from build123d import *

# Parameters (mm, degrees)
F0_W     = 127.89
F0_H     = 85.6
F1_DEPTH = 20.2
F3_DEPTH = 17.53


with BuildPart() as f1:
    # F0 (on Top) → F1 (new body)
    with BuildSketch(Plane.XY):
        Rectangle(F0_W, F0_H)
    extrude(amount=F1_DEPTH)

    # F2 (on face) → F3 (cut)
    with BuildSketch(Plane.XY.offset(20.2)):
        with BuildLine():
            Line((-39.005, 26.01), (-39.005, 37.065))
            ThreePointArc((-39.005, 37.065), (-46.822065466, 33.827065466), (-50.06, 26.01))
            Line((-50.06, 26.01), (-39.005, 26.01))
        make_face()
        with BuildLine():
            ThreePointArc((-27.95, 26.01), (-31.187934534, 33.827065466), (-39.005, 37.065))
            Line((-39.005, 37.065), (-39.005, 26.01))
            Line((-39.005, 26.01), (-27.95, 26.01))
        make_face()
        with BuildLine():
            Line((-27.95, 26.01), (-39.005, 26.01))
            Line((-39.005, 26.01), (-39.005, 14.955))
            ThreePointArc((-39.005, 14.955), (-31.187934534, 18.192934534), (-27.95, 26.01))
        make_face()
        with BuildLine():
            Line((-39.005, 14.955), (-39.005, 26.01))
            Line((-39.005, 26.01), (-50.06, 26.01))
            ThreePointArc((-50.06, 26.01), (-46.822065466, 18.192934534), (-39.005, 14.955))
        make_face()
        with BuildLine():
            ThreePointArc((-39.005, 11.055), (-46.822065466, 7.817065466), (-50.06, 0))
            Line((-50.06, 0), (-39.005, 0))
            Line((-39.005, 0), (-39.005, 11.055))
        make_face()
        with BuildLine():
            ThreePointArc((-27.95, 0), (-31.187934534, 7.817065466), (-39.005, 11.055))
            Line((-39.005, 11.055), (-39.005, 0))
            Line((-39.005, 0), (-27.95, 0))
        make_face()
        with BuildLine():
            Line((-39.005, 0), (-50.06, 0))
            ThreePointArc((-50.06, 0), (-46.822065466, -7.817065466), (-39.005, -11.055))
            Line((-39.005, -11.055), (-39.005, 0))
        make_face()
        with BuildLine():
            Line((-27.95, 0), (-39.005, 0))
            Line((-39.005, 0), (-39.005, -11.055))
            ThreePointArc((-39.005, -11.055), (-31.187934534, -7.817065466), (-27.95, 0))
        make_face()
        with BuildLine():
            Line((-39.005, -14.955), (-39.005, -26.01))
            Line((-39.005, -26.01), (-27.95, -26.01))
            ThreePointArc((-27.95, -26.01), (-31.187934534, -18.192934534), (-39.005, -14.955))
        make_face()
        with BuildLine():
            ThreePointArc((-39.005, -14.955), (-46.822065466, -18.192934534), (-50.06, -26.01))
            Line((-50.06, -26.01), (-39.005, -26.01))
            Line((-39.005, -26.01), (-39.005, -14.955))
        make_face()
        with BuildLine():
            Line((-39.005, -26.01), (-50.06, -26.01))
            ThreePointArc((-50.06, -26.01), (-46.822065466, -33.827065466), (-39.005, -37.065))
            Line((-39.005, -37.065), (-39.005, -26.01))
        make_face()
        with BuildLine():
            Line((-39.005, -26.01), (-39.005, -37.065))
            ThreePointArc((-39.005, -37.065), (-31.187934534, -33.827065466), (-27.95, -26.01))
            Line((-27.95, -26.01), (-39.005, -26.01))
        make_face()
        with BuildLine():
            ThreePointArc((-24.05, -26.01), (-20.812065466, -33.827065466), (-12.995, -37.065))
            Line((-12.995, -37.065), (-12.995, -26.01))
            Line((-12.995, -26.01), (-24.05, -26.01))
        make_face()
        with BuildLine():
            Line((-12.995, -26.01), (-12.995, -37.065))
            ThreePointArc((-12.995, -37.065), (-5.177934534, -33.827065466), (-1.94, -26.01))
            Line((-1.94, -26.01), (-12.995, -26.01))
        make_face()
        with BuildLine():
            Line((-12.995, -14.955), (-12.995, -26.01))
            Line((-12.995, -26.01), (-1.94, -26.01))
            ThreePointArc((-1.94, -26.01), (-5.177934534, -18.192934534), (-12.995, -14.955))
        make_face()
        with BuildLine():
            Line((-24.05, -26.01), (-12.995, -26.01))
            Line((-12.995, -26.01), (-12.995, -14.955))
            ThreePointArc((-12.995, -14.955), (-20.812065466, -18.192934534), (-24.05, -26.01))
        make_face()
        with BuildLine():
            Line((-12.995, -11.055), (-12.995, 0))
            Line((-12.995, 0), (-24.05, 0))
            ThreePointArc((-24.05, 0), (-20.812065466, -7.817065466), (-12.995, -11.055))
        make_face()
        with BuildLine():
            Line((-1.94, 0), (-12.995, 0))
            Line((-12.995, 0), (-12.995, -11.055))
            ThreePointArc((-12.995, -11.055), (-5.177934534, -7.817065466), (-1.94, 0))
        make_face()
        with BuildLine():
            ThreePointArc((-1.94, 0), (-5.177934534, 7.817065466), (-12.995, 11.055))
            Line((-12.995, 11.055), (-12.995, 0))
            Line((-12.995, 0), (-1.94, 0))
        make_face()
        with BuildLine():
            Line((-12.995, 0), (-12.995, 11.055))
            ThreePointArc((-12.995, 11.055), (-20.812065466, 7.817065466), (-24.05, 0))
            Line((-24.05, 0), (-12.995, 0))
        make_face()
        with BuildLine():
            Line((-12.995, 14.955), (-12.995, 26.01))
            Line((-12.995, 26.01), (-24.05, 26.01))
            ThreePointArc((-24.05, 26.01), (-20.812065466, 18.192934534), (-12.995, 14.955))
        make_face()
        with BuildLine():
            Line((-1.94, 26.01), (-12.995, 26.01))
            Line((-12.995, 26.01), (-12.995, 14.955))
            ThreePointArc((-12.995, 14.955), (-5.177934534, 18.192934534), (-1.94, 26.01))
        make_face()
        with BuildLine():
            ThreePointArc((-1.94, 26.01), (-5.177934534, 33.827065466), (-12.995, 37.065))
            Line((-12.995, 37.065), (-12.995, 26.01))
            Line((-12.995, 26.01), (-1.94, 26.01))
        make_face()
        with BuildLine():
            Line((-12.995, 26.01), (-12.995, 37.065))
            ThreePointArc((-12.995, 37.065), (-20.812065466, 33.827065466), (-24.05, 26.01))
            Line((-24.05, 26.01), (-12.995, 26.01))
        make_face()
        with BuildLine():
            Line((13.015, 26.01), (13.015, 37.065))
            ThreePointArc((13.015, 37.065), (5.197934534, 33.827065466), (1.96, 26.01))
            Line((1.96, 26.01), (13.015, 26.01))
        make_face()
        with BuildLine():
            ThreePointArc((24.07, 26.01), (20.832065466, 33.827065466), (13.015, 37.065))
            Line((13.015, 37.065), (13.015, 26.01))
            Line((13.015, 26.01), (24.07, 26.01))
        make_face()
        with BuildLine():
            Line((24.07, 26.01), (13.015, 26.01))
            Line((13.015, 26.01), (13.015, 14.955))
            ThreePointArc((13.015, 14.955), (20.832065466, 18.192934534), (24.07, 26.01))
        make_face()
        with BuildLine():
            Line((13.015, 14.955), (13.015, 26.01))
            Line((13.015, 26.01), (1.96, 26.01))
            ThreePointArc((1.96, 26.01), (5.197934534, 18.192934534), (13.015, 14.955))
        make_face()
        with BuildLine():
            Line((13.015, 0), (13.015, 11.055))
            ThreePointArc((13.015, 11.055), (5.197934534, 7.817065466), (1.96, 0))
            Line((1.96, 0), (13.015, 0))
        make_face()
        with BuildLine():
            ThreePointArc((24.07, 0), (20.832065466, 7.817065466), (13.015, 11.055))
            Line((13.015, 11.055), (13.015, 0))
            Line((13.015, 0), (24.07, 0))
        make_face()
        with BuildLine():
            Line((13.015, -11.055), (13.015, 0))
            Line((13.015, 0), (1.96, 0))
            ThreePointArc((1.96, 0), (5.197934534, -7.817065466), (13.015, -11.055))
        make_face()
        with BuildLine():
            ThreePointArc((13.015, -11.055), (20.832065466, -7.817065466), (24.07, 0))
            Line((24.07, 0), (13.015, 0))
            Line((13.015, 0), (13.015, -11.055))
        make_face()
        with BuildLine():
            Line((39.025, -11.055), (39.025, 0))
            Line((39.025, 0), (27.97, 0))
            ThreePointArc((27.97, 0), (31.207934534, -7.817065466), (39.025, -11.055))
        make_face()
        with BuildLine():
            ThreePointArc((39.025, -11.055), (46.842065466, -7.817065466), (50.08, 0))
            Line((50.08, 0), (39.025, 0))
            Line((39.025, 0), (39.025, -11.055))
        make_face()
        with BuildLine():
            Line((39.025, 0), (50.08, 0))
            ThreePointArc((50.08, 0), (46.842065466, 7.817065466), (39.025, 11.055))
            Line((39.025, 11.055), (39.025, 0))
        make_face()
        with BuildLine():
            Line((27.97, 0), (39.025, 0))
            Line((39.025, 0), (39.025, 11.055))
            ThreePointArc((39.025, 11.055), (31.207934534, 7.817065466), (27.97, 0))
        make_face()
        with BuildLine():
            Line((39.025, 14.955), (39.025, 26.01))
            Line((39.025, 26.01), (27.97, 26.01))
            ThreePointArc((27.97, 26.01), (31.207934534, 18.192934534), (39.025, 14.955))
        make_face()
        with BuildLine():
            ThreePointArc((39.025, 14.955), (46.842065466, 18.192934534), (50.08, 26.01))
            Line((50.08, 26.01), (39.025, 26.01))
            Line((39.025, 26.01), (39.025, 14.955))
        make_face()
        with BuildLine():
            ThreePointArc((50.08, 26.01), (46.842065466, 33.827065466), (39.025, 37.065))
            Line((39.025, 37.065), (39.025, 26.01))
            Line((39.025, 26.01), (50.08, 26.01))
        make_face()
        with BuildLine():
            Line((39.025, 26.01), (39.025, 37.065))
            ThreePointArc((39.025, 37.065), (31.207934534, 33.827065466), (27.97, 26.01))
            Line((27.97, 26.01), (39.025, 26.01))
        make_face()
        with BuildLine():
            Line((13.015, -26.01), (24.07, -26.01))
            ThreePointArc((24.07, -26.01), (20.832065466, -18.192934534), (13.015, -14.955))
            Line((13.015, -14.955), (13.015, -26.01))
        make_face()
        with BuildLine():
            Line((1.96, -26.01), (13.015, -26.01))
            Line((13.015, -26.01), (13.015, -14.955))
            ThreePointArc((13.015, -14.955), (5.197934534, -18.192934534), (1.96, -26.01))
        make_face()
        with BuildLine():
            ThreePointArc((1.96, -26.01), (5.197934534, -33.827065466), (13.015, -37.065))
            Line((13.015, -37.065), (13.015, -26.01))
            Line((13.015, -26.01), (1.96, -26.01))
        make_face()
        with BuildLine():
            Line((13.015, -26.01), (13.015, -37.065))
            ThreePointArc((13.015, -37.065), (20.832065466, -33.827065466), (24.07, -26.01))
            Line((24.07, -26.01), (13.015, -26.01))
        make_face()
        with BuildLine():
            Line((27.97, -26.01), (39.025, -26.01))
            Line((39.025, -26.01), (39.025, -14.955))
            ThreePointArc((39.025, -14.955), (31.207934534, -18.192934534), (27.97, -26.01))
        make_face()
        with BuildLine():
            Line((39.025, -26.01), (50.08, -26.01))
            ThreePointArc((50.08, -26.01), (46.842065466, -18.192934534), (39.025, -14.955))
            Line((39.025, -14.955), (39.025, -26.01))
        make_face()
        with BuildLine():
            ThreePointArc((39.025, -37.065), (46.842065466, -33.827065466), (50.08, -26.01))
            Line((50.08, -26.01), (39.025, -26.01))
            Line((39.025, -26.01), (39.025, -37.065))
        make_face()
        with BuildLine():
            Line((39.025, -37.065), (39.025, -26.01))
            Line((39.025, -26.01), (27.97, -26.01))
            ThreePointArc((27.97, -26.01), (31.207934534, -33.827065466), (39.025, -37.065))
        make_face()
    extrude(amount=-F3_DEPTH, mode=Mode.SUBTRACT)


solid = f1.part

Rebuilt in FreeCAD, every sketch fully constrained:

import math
import FreeCAD as App
import Part
import Sketcher
Q = App.Units.Quantity


def add_polygon(sketch, points):
    """Adds a closed chain of lines whose ends are joined by coincident constraints."""
    first, n = sketch.GeometryCount, len(points)
    for a, b in zip(points, points[1:] + points[:1]):
        sketch.addGeometry(Part.LineSegment(App.Vector(*a, 0), App.Vector(*b, 0)), False)
    for i in range(n):
        sketch.addConstraint(Sketcher.Constraint("Coincident", first + i, 2, first + (i + 1) % n, 1))

doc = App.newDocument("Part")
body = doc.addObject("PartDesign::Body", "Body")

sketch1 = body.newObject("Sketcher::SketchObject", "Sketch")
sketch1.AttachmentSupport = (doc.getObject("XY_Plane"), [""])
sketch1.MapMode = "FlatFace"
add_polygon(sketch1, [(-64, 43), (-64, -43), (64, -43), (64, 43)])
sketch1.addConstraint([
    Sketcher.Constraint("Vertical", 0),
    Sketcher.Constraint("Horizontal", 1),
    Sketcher.Constraint("Vertical", 2),
    Sketcher.Constraint("Horizontal", 3),
    Sketcher.Constraint("Symmetric", 0, 2, 2, 2, -1, 1),
    Sketcher.Constraint("DistanceY", 0, 2, 0, 1, Q("85.6 mm")),
    Sketcher.Constraint("DistanceX", 1, 1, 1, 2, Q("127.89 mm")),
])
pad1 = body.newObject("PartDesign::Pad", "Pad")
pad1.Profile = sketch1
pad1.Length = 20.2

sketch2 = body.newObject("Sketcher::SketchObject", "Sketch001")
sketch2.AttachmentSupport = (doc.getObject("XY_Plane"), [""])
sketch2.MapMode = "FlatFace"
sketch2.AttachmentOffset = App.Placement(App.Vector(0, 0, 20.2), App.Rotation())
sketch2.addGeometry([
    Part.ArcOfCircle(Part.Circle(App.Vector(-39, 26, 0), App.Vector(0, 0, 1), 11), math.radians(90), math.radians(180)),
    Part.ArcOfCircle(Part.Circle(App.Vector(-39, 26, 0), App.Vector(0, 0, 1), 11), math.radians(180), math.radians(270)),
    Part.ArcOfCircle(Part.Circle(App.Vector(-39, 26, 0), App.Vector(0, 0, 1), 11), math.radians(-90), math.radians(0)),
    Part.ArcOfCircle(Part.Circle(App.Vector(-39, 26, 0), App.Vector(0, 0, 1), 11), math.radians(0), math.radians(90)),
    Part.ArcOfCircle(Part.Circle(App.Vector(-39, 0, 0), App.Vector(0, 0, 1), 11), math.radians(90), math.radians(180)),
    Part.ArcOfCircle(Part.Circle(App.Vector(-39, 0, 0), App.Vector(0, 0, 1), 11), math.radians(180), math.radians(270)),
    Part.ArcOfCircle(Part.Circle(App.Vector(-39, 0, 0), App.Vector(0, 0, 1), 11), math.radians(-90), math.radians(0)),
    Part.ArcOfCircle(Part.Circle(App.Vector(-39, 0, 0), App.Vector(0, 0, 1), 11), math.radians(0), math.radians(90)),
    Part.ArcOfCircle(Part.Circle(App.Vector(-39, -26, 0), App.Vector(0, 0, 1), 11), math.radians(0), math.radians(90)),
    Part.ArcOfCircle(Part.Circle(App.Vector(-39, -26, 0), App.Vector(0, 0, 1), 11), math.radians(90), math.radians(180)),
    Part.ArcOfCircle(Part.Circle(App.Vector(-39, -26, 0), App.Vector(0, 0, 1), 11), math.radians(180), math.radians(270)),
    Part.ArcOfCircle(Part.Circle(App.Vector(-39, -26, 0), App.Vector(0, 0, 1), 11), math.radians(-90), math.radians(0)),
    Part.ArcOfCircle(Part.Circle(App.Vector(-13, -26, 0), App.Vector(0, 0, 1), 11), math.radians(180), math.radians(270)),
    Part.ArcOfCircle(Part.Circle(App.Vector(-13, -26, 0), App.Vector(0, 0, 1), 11), math.radians(-90), math.radians(0)),
    Part.ArcOfCircle(Part.Circle(App.Vector(-13, -26, 0), App.Vector(0, 0, 1), 11), math.radians(0), math.radians(90)),
    Part.ArcOfCircle(Part.Circle(App.Vector(-13, -26, 0), App.Vector(0, 0, 1), 11), math.radians(90), math.radians(180)),
    Part.ArcOfCircle(Part.Circle(App.Vector(-13, 0, 0), App.Vector(0, 0, 1), 11), math.radians(180), math.radians(270)),
    Part.ArcOfCircle(Part.Circle(App.Vector(-13, 0, 0), App.Vector(0, 0, 1), 11), math.radians(-90), math.radians(0)),
    Part.ArcOfCircle(Part.Circle(App.Vector(-13, 0, 0), App.Vector(0, 0, 1), 11), math.radians(0), math.radians(90)),
    Part.ArcOfCircle(Part.Circle(App.Vector(-13, 0, 0), App.Vector(0, 0, 1), 11), math.radians(90), math.radians(180)),
    Part.ArcOfCircle(Part.Circle(App.Vector(-13, 26, 0), App.Vector(0, 0, 1), 11), math.radians(180), math.radians(270)),
    Part.ArcOfCircle(Part.Circle(App.Vector(-13, 26, 0), App.Vector(0, 0, 1), 11), math.radians(-90), math.radians(0)),
    Part.ArcOfCircle(Part.Circle(App.Vector(-13, 26, 0), App.Vector(0, 0, 1), 11), math.radians(0), math.radians(90)),
    Part.ArcOfCircle(Part.Circle(App.Vector(-13, 26, 0), App.Vector(0, 0, 1), 11), math.radians(90), math.radians(180)),
    Part.ArcOfCircle(Part.Circle(App.Vector(13, 26, 0), App.Vector(0, 0, 1), 11), math.radians(90), math.radians(180)),
    Part.ArcOfCircle(Part.Circle(App.Vector(13, 26, 0), App.Vector(0, 0, 1), 11), math.radians(180), math.radians(270)),
    Part.ArcOfCircle(Part.Circle(App.Vector(13, 26, 0), App.Vector(0, 0, 1), 11), math.radians(-90), math.radians(0)),
    Part.ArcOfCircle(Part.Circle(App.Vector(13, 26, 0), App.Vector(0, 0, 1), 11), math.radians(0), math.radians(90)),
    Part.ArcOfCircle(Part.Circle(App.Vector(13, 0, 0), App.Vector(0, 0, 1), 11), math.radians(90), math.radians(180)),
    Part.ArcOfCircle(Part.Circle(App.Vector(13, 0, 0), App.Vector(0, 0, 1), 11), math.radians(180), math.radians(270)),
    Part.ArcOfCircle(Part.Circle(App.Vector(13, 0, 0), App.Vector(0, 0, 1), 11), math.radians(-90), math.radians(0)),
    Part.ArcOfCircle(Part.Circle(App.Vector(13, 0, 0), App.Vector(0, 0, 1), 11), math.radians(0), math.radians(90)),
    Part.ArcOfCircle(Part.Circle(App.Vector(39, 0, 0), App.Vector(0, 0, 1), 11), math.radians(180), math.radians(270)),
    Part.ArcOfCircle(Part.Circle(App.Vector(39, 0, 0), App.Vector(0, 0, 1), 11), math.radians(-90), math.radians(0)),
    Part.ArcOfCircle(Part.Circle(App.Vector(39, 0, 0), App.Vector(0, 0, 1), 11), math.radians(0), math.radians(90)),
    Part.ArcOfCircle(Part.Circle(App.Vector(39, 0, 0), App.Vector(0, 0, 1), 11), math.radians(90), math.radians(180)),
    Part.ArcOfCircle(Part.Circle(App.Vector(39, 26, 0), App.Vector(0, 0, 1), 11), math.radians(180), math.radians(270)),
    Part.ArcOfCircle(Part.Circle(App.Vector(39, 26, 0), App.Vector(0, 0, 1), 11), math.radians(-90), math.radians(0)),
    Part.ArcOfCircle(Part.Circle(App.Vector(39, 26, 0), App.Vector(0, 0, 1), 11), math.radians(0), math.radians(90)),
    Part.ArcOfCircle(Part.Circle(App.Vector(39, 26, 0), App.Vector(0, 0, 1), 11), math.radians(90), math.radians(180)),
    Part.ArcOfCircle(Part.Circle(App.Vector(13, -26, 0), App.Vector(0, 0, 1), 11), math.radians(0), math.radians(90)),
    Part.ArcOfCircle(Part.Circle(App.Vector(13, -26, 0), App.Vector(0, 0, 1), 11), math.radians(90), math.radians(180)),
    Part.ArcOfCircle(Part.Circle(App.Vector(13, -26, 0), App.Vector(0, 0, 1), 11), math.radians(180), math.radians(270)),
    Part.ArcOfCircle(Part.Circle(App.Vector(13, -26, 0), App.Vector(0, 0, 1), 11), math.radians(-90), math.radians(0)),
    Part.ArcOfCircle(Part.Circle(App.Vector(39, -26, 0), App.Vector(0, 0, 1), 11), math.radians(-90), math.radians(0)),
    Part.ArcOfCircle(Part.Circle(App.Vector(39, -26, 0), App.Vector(0, 0, 1), 11), math.radians(0), math.radians(90)),
    Part.ArcOfCircle(Part.Circle(App.Vector(39, -26, 0), App.Vector(0, 0, 1), 11), math.radians(90), math.radians(180)),
    Part.ArcOfCircle(Part.Circle(App.Vector(39, -26, 0), App.Vector(0, 0, 1), 11), math.radians(180), math.radians(270)),
], False)
sketch2.addConstraint([
    Sketcher.Constraint("Tangent", 0, 2, 1, 1),
    Sketcher.Constraint("Tangent", 1, 2, 2, 1),
    Sketcher.Constraint("Tangent", 2, 2, 3, 1),
    Sketcher.Constraint("Tangent", 3, 2, 0, 1),
    Sketcher.Constraint("Tangent", 4, 2, 5, 1),
    Sketcher.Constraint("Tangent", 5, 2, 6, 1),
    Sketcher.Constraint("Tangent", 6, 2, 7, 1),
    Sketcher.Constraint("Tangent", 7, 2, 4, 1),
    Sketcher.Constraint("Tangent", 8, 2, 9, 1),
    Sketcher.Constraint("Tangent", 9, 2, 10, 1),
    Sketcher.Constraint("Tangent", 10, 2, 11, 1),
    Sketcher.Constraint("Tangent", 11, 2, 8, 1),
    Sketcher.Constraint("Tangent", 12, 2, 13, 1),
    Sketcher.Constraint("Tangent", 13, 2, 14, 1),
    Sketcher.Constraint("Tangent", 14, 2, 15, 1),
    Sketcher.Constraint("Tangent", 15, 2, 12, 1),
    Sketcher.Constraint("Tangent", 16, 2, 17, 1),
    Sketcher.Constraint("Tangent", 17, 2, 18, 1),
    Sketcher.Constraint("Tangent", 18, 2, 19, 1),
    Sketcher.Constraint("Tangent", 19, 2, 16, 1),
    Sketcher.Constraint("Tangent", 20, 2, 21, 1),
    Sketcher.Constraint("Tangent", 21, 2, 22, 1),
    Sketcher.Constraint("Tangent", 22, 2, 23, 1),
    Sketcher.Constraint("Tangent", 23, 2, 20, 1),
    Sketcher.Constraint("Tangent", 24, 2, 25, 1),
    Sketcher.Constraint("Tangent", 25, 2, 26, 1),
    Sketcher.Constraint("Tangent", 26, 2, 27, 1),
    Sketcher.Constraint("Tangent", 27, 2, 24, 1),
    Sketcher.Constraint("Tangent", 28, 2, 29, 1),
    Sketcher.Constraint("Tangent", 29, 2, 30, 1),
    Sketcher.Constraint("Tangent", 30, 2, 31, 1),
    Sketcher.Constraint("Tangent", 31, 2, 28, 1),
    Sketcher.Constraint("Tangent", 32, 2, 33, 1),
    Sketcher.Constraint("Tangent", 33, 2, 34, 1),
    Sketcher.Constraint("Tangent", 34, 2, 35, 1),
    Sketcher.Constraint("Tangent", 35, 2, 32, 1),
    Sketcher.Constraint("Tangent", 36, 2, 37, 1),
    Sketcher.Constraint("Tangent", 37, 2, 38, 1),
    Sketcher.Constraint("Tangent", 38, 2, 39, 1),
    Sketcher.Constraint("Tangent", 39, 2, 36, 1),
    Sketcher.Constraint("Tangent", 40, 2, 41, 1),
    Sketcher.Constraint("Tangent", 41, 2, 42, 1),
    Sketcher.Constraint("Tangent", 42, 2, 43, 1),
    Sketcher.Constraint("Tangent", 43, 2, 40, 1),
    Sketcher.Constraint("Tangent", 44, 2, 45, 1),
    Sketcher.Constraint("Tangent", 45, 2, 46, 1),
    Sketcher.Constraint("Tangent", 46, 2, 47, 1),
    Sketcher.Constraint("Tangent", 47, 2, 44, 1),
    Sketcher.Constraint("Equal", 0, 1),
    Sketcher.Constraint("Equal", 3, 4),
    Sketcher.Constraint("Equal", 4, 5),
    Sketcher.Constraint("Equal", 7, 8),
    Sketcher.Constraint("Equal", 8, 9),
    Sketcher.Constraint("Equal", 11, 12),
    Sketcher.Constraint("Equal", 12, 13),
    Sketcher.Constraint("Equal", 15, 16),
    Sketcher.Constraint("Equal", 16, 17),
    Sketcher.Constraint("Equal", 19, 20),
    Sketcher.Constraint("Equal", 20, 21),
    Sketcher.Constraint("Equal", 23, 24),
    Sketcher.Constraint("Equal", 24, 25),
    Sketcher.Constraint("Equal", 27, 28),
    Sketcher.Constraint("Equal", 28, 29),
    Sketcher.Constraint("Equal", 31, 32),
    Sketcher.Constraint("Equal", 32, 33),
    Sketcher.Constraint("Equal", 35, 36),
    Sketcher.Constraint("Equal", 36, 37),
    Sketcher.Constraint("Equal", 39, 40),
    Sketcher.Constraint("Equal", 40, 41),
    Sketcher.Constraint("Equal", 43, 44),
    Sketcher.Constraint("Equal", 44, 45),
    Sketcher.Constraint("Symmetric", 0, 3, 8, 3, -1),
    Sketcher.Constraint("Symmetric", 12, 3, 20, 3, -1),
    Sketcher.Constraint("Symmetric", 24, 3, 40, 3, -1),
    Sketcher.Constraint("Symmetric", 36, 3, 44, 3, -1),
    Sketcher.Constraint("Symmetric", 5, 2, 7, 2, -1),
    Sketcher.Constraint("Symmetric", 16, 2, 18, 2, -1),
    Sketcher.Constraint("Symmetric", 29, 2, 31, 2, -1),
    Sketcher.Constraint("Symmetric", 32, 2, 34, 2, -1),
    Sketcher.Constraint("PointOnObject", 4, 2, -1),
    Sketcher.Constraint("PointOnObject", 6, 2, -1),
    Sketcher.Constraint("PointOnObject", 17, 2, -1),
    Sketcher.Constraint("PointOnObject", 19, 2, -1),
    Sketcher.Constraint("PointOnObject", 28, 2, -1),
    Sketcher.Constraint("PointOnObject", 30, 2, -1),
    Sketcher.Constraint("PointOnObject", 33, 2, -1),
    Sketcher.Constraint("PointOnObject", 35, 2, -1),
    Sketcher.Constraint("Horizontal", 11, 3, 12, 3),
    Sketcher.Constraint("Horizontal", 23, 3, 24, 3),
    Sketcher.Constraint("Horizontal", 27, 3, 36, 3),
    Sketcher.Constraint("Horizontal", 39, 3, 0, 2),
    Sketcher.Constraint("Horizontal", 0, 2, 2, 2),
    Sketcher.Constraint("Horizontal", 47, 3, 9, 2),
    Sketcher.Constraint("Horizontal", 9, 2, 11, 2),
    Sketcher.Constraint("Horizontal", 11, 2, 13, 2),
    Sketcher.Constraint("Horizontal", 13, 2, 15, 2),
    Sketcher.Constraint("Horizontal", 2, 2, 21, 2),
    Sketcher.Constraint("Horizontal", 21, 2, 23, 2),
    Sketcher.Constraint("Horizontal", 23, 2, 24, 2),
    Sketcher.Constraint("Horizontal", 24, 2, 26, 2),
    Sketcher.Constraint("Horizontal", 26, 2, 37, 2),
    Sketcher.Constraint("Horizontal", 37, 2, 39, 2),
    Sketcher.Constraint("Horizontal", 15, 2, 41, 2),
    Sketcher.Constraint("Horizontal", 41, 2, 43, 2),
    Sketcher.Constraint("Horizontal", 43, 2, 44, 2),
    Sketcher.Constraint("Horizontal", 44, 2, 46, 2),
    Sketcher.Constraint("Vertical", 3, 3, 4, 3),
    Sketcher.Constraint("Vertical", 15, 3, 16, 3),
    Sketcher.Constraint("Vertical", 27, 3, 28, 3),
    Sketcher.Constraint("Vertical", 35, 3, 36, 3),
    Sketcher.Constraint("Vertical", 11, 3, 1, 2),
    Sketcher.Constraint("Vertical", 1, 2, 3, 2),
    Sketcher.Constraint("Vertical", 3, 2, 5, 2),
    Sketcher.Constraint("Vertical", 7, 2, 8, 2),
    Sketcher.Constraint("Vertical", 8, 2, 10, 2),
    Sketcher.Constraint("Vertical", 23, 3, 12, 2),
    Sketcher.Constraint("Vertical", 12, 2, 14, 2),
    Sketcher.Constraint("Vertical", 14, 2, 16, 2),
    Sketcher.Constraint("Vertical", 18, 2, 20, 2),
    Sketcher.Constraint("Vertical", 20, 2, 22, 2),
    Sketcher.Constraint("Vertical", 43, 3, 25, 2),
    Sketcher.Constraint("Vertical", 25, 2, 27, 2),
    Sketcher.Constraint("Vertical", 27, 2, 29, 2),
    Sketcher.Constraint("Vertical", 47, 3, 32, 2),
    Sketcher.Constraint("Vertical", 34, 2, 36, 2),
    Sketcher.Constraint("Vertical", 36, 2, 38, 2),
    Sketcher.Constraint("Vertical", 31, 2, 40, 2),
    Sketcher.Constraint("Vertical", 40, 2, 42, 2),
    Sketcher.Constraint("Vertical", 38, 2, 45, 2),
    Sketcher.Constraint("Vertical", 45, 2, 47, 2),
    Sketcher.Constraint("Radius", 0, Q("11.055 mm")),
    Sketcher.Constraint("DistanceY", -1, 1, 0, 3, Q("26.01 mm")),
    Sketcher.Constraint("DistanceX", 0, 2, -1, 1, Q("50.06 mm")),
    Sketcher.Constraint("DistanceX", 13, 2, -1, 1, Q("1.94 mm")),
    Sketcher.Constraint("DistanceX", -1, 1, 24, 2, Q("1.96 mm")),
    Sketcher.Constraint("DistanceX", -1, 1, 33, 2, Q("50.08 mm")),
])
pocket1 = body.newObject("PartDesign::Pocket", "Pocket")
pocket1.Profile = sketch2
pocket1.Length = 17.53

doc.recompute()
